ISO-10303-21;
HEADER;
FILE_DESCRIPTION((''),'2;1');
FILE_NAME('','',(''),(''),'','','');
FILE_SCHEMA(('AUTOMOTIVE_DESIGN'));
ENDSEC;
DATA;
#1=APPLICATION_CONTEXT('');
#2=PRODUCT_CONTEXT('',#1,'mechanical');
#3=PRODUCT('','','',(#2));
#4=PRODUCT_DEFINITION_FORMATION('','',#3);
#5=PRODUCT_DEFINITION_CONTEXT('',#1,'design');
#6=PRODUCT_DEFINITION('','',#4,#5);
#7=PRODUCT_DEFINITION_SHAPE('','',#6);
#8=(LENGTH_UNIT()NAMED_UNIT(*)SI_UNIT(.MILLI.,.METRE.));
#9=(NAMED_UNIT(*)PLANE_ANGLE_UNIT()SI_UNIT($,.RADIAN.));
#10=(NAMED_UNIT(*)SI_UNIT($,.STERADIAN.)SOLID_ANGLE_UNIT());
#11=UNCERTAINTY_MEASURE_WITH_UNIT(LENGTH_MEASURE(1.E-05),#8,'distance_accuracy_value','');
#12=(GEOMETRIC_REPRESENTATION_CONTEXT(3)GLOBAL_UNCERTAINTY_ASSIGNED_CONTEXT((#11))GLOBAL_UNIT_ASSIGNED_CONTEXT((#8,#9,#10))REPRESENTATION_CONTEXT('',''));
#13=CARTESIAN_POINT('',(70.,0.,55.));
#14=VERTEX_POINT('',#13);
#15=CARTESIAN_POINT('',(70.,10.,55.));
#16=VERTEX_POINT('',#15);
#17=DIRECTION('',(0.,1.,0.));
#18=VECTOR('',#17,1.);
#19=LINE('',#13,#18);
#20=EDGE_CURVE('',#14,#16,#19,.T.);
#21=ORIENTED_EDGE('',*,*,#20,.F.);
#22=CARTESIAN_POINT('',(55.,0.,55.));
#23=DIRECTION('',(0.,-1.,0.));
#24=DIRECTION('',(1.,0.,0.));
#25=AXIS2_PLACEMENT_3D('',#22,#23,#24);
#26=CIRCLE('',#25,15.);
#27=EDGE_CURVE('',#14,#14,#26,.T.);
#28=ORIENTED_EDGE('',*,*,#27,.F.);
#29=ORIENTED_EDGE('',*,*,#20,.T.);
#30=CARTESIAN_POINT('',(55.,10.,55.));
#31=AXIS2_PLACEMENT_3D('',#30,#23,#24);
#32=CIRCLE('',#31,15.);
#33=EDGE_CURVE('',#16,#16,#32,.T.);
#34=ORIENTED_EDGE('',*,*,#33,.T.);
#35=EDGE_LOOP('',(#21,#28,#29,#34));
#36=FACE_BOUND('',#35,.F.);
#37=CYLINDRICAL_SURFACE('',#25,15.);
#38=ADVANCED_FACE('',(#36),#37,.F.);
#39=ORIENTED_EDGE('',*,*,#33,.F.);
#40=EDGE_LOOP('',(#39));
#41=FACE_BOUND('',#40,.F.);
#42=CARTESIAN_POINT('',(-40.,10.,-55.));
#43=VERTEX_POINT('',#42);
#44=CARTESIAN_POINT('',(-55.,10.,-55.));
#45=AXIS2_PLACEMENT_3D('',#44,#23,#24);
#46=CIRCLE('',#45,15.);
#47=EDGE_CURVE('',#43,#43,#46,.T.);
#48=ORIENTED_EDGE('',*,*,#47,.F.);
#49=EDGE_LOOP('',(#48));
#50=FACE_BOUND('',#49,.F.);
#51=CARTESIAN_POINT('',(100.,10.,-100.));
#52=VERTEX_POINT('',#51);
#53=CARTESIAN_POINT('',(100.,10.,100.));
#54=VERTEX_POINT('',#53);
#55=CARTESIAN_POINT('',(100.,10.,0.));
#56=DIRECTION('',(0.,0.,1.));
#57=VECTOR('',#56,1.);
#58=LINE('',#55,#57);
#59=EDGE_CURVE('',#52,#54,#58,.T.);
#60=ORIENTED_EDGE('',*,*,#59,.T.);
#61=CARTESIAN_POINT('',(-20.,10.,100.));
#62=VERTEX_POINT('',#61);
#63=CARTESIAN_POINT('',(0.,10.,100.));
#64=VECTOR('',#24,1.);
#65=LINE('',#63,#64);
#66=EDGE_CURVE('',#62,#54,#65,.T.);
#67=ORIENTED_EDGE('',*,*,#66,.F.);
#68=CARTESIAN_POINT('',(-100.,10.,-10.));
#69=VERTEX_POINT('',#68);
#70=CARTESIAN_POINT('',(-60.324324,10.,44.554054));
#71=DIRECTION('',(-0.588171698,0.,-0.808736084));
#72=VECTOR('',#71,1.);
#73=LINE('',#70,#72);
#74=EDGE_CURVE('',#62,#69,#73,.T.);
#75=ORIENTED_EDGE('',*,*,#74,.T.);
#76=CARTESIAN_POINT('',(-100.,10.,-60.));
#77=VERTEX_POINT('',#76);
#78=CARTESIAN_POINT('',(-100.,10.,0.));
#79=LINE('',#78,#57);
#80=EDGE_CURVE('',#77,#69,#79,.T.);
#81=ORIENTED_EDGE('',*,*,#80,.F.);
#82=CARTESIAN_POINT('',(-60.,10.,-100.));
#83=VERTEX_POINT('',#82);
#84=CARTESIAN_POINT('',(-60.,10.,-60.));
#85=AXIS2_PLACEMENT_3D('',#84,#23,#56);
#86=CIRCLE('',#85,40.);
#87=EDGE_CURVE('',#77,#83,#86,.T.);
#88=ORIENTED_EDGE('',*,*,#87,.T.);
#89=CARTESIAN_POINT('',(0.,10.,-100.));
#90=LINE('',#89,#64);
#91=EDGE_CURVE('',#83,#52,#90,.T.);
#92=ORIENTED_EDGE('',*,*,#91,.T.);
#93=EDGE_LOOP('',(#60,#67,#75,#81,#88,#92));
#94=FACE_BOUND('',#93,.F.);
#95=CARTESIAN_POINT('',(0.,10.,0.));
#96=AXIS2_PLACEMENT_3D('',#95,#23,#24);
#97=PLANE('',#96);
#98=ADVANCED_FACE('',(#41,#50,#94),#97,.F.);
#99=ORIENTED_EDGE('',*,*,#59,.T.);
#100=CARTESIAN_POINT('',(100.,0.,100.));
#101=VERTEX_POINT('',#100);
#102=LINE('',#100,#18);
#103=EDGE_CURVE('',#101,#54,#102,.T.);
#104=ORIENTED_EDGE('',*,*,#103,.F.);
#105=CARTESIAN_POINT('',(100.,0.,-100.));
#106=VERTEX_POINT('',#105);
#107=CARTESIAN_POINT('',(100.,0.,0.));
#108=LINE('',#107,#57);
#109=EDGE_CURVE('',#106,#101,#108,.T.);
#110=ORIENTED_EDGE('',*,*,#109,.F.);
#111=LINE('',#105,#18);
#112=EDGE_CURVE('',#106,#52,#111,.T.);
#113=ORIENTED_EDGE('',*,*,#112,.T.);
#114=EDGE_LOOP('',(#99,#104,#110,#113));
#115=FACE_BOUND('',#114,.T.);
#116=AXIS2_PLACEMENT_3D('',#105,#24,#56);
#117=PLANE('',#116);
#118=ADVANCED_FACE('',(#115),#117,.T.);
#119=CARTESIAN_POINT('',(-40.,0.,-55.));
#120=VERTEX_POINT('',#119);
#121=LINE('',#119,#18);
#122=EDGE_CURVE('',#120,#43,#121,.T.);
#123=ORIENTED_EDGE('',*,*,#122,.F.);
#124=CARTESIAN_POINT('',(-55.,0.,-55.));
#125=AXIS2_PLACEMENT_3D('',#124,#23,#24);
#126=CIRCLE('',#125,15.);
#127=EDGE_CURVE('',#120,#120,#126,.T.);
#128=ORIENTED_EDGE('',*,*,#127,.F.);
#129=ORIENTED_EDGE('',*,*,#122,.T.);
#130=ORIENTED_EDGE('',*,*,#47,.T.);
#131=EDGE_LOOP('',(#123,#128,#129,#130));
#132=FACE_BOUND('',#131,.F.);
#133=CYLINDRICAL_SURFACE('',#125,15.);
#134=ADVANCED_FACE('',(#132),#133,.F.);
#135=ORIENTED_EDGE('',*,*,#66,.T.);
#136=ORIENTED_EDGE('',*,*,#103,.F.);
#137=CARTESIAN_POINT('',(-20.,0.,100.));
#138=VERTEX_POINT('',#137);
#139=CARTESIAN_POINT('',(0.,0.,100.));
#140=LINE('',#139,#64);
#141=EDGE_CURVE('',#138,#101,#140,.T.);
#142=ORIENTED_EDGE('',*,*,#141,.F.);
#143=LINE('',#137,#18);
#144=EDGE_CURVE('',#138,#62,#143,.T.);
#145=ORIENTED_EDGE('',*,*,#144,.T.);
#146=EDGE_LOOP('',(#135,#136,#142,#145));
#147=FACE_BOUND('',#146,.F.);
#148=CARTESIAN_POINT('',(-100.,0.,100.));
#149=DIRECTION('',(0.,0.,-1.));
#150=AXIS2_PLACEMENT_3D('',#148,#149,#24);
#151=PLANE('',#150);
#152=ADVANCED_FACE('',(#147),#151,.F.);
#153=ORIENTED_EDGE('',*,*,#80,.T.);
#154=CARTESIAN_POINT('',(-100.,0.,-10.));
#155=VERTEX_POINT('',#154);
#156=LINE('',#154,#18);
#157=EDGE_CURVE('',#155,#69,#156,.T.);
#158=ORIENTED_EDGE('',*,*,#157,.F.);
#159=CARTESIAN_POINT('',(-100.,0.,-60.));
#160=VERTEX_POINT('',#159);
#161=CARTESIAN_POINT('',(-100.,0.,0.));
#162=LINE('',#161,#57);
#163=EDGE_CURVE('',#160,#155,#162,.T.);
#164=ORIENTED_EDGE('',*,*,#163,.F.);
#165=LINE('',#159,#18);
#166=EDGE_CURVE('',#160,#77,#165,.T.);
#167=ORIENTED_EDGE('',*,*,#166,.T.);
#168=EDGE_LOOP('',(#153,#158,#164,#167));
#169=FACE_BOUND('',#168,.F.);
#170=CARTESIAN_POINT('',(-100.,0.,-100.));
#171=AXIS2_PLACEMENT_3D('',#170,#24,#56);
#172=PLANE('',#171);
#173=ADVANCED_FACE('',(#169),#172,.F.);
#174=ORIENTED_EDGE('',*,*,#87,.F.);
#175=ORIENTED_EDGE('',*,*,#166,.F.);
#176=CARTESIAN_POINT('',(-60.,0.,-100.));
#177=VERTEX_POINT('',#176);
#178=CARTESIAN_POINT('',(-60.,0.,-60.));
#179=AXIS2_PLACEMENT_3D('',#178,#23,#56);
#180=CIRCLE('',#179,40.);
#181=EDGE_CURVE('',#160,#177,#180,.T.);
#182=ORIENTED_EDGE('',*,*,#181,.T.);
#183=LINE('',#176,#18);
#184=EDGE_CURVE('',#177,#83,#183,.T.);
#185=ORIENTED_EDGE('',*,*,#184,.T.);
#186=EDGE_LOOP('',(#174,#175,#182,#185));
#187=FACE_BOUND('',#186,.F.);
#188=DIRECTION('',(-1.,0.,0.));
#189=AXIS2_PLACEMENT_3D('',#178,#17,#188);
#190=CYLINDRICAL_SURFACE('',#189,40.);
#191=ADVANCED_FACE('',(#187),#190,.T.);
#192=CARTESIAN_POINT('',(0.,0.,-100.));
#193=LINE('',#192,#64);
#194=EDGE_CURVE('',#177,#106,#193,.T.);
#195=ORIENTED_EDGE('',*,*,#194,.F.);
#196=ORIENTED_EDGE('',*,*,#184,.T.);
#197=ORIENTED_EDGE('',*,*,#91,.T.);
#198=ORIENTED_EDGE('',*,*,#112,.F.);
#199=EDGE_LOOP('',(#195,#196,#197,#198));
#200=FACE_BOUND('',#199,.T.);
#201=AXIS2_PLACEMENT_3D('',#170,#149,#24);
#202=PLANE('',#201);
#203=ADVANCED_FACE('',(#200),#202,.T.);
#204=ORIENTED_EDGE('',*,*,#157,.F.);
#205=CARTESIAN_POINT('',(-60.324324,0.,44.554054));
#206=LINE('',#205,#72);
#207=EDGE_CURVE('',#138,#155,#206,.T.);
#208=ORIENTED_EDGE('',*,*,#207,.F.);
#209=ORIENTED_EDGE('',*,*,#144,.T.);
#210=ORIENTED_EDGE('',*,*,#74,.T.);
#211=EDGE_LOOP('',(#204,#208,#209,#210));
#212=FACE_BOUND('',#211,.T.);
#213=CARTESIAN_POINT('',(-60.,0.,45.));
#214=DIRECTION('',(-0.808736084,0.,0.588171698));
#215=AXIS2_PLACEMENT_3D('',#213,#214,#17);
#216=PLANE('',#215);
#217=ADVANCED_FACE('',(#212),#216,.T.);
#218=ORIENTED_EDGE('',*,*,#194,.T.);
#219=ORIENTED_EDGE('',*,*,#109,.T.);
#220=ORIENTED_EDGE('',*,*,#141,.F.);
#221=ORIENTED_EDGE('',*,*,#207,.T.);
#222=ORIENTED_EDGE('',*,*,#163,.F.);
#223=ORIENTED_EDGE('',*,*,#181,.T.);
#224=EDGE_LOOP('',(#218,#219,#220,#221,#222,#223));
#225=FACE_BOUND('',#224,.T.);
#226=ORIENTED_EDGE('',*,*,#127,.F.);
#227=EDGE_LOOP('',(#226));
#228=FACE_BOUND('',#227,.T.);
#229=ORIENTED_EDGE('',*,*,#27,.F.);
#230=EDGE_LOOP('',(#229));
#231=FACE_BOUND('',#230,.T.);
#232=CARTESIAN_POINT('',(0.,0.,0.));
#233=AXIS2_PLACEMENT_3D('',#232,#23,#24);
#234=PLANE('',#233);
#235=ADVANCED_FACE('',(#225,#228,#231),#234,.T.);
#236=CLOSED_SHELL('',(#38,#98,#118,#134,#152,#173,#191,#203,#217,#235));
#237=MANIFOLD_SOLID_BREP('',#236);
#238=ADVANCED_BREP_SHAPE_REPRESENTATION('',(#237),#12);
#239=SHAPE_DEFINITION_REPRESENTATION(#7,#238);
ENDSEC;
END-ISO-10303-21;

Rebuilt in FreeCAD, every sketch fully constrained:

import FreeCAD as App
import Part
import Sketcher
from FreeCAD import Vector
Q = App.Units.Quantity


def edges_at(feature, points):
    """Names of the edges that pass closest to the given points."""
    edges = feature.Shape.Edges
    near = lambda p: min(range(len(edges)), key=lambda i: edges[i].distToShape(Part.Vertex(*p))[0])
    return sorted({f"Edge{near(p) + 1}" for p in points})


def add_polygon(sketch, points):
    """Adds a closed chain of lines whose ends are joined by coincident constraints."""
    first, n = sketch.GeometryCount, len(points)
    for a, b in zip(points, points[1:] + points[:1]):
        sketch.addGeometry(Part.LineSegment(App.Vector(*a, 0), App.Vector(*b, 0)), False)
    for i in range(n):
        sketch.addConstraint(Sketcher.Constraint("Coincident", first + i, 2, first + (i + 1) % n, 1))

doc = App.newDocument("Part")
body = doc.addObject("PartDesign::Body", "Body")

sketch1 = doc.addObject("Sketcher::SketchObject", "Sketch")
body.addObject(sketch1)
sketch1.AttachmentSupport = (doc.XZ_Plane, [""])
sketch1.MapMode = "FlatFace"
add_polygon(sketch1, [(-100, 100), (-100, -100), (100, -100), (100, 100)])
sketch1.addConstraint([
    Sketcher.Constraint("Vertical", 0),
    Sketcher.Constraint("Horizontal", 1),
    Sketcher.Constraint("Vertical", 2),
    Sketcher.Constraint("Horizontal", 3),
    Sketcher.Constraint("Symmetric", 0, 2, 2, 2, -1, 1),
    Sketcher.Constraint("Equal", 3, 0),
    Sketcher.Constraint("DistanceX", 1, 1, 1, 2, Q("200 mm")),
])
pad1 = doc.addObject("PartDesign::Pad", "Pad")
body.addObject(pad1)
pad1.Profile = sketch1
pad1.Length = 10
pad1.Reversed = True

sketch2 = doc.addObject("Sketcher::SketchObject", "Sketch001")
body.addObject(sketch2)
sketch2.AttachmentSupport = (doc.XZ_Plane, [""])
sketch2.MapMode = "FlatFace"
sketch2.addGeometry([
    Part.Circle(Vector(-55, -55, 0), Vector(0, 0, 1), 15),
    Part.Circle(Vector(55, 55, 0), Vector(0, 0, 1), 15),
], False)
sketch2.addConstraint([
    Sketcher.Constraint("Equal", 0, 1),
    Sketcher.Constraint("Symmetric", 0, 3, 1, 3, -1, 1),
    Sketcher.Constraint("Diameter", 0, Q("30 mm")),
    Sketcher.Constraint("DistanceX", 0, 3, -1, 1, Q("55 mm")),
    Sketcher.Constraint("DistanceY", 0, 3, -1, 1, Q("55 mm")),
])
pocket1 = doc.addObject("PartDesign::Pocket", "Pocket")
body.addObject(pocket1)
pocket1.Profile = sketch2
pocket1.Type = "ThroughAll"
doc.recompute()

fillet = doc.addObject("PartDesign::Fillet", "Fillet")
body.addObject(fillet)
fillet.Base = (pocket1, edges_at(pocket1, [(-100, 5, -100)]))
fillet.Radius = 40
doc.recompute()

chamfer = doc.addObject("PartDesign::Chamfer", "Chamfer")
body.addObject(chamfer)
chamfer.Base = (fillet, edges_at(fillet, [(-100, 5, 100)]))
chamfer.ChamferType = "Two distances"
chamfer.Size = 80
chamfer.Size2 = 110
chamfer.FlipDirection = True

doc.recompute()
